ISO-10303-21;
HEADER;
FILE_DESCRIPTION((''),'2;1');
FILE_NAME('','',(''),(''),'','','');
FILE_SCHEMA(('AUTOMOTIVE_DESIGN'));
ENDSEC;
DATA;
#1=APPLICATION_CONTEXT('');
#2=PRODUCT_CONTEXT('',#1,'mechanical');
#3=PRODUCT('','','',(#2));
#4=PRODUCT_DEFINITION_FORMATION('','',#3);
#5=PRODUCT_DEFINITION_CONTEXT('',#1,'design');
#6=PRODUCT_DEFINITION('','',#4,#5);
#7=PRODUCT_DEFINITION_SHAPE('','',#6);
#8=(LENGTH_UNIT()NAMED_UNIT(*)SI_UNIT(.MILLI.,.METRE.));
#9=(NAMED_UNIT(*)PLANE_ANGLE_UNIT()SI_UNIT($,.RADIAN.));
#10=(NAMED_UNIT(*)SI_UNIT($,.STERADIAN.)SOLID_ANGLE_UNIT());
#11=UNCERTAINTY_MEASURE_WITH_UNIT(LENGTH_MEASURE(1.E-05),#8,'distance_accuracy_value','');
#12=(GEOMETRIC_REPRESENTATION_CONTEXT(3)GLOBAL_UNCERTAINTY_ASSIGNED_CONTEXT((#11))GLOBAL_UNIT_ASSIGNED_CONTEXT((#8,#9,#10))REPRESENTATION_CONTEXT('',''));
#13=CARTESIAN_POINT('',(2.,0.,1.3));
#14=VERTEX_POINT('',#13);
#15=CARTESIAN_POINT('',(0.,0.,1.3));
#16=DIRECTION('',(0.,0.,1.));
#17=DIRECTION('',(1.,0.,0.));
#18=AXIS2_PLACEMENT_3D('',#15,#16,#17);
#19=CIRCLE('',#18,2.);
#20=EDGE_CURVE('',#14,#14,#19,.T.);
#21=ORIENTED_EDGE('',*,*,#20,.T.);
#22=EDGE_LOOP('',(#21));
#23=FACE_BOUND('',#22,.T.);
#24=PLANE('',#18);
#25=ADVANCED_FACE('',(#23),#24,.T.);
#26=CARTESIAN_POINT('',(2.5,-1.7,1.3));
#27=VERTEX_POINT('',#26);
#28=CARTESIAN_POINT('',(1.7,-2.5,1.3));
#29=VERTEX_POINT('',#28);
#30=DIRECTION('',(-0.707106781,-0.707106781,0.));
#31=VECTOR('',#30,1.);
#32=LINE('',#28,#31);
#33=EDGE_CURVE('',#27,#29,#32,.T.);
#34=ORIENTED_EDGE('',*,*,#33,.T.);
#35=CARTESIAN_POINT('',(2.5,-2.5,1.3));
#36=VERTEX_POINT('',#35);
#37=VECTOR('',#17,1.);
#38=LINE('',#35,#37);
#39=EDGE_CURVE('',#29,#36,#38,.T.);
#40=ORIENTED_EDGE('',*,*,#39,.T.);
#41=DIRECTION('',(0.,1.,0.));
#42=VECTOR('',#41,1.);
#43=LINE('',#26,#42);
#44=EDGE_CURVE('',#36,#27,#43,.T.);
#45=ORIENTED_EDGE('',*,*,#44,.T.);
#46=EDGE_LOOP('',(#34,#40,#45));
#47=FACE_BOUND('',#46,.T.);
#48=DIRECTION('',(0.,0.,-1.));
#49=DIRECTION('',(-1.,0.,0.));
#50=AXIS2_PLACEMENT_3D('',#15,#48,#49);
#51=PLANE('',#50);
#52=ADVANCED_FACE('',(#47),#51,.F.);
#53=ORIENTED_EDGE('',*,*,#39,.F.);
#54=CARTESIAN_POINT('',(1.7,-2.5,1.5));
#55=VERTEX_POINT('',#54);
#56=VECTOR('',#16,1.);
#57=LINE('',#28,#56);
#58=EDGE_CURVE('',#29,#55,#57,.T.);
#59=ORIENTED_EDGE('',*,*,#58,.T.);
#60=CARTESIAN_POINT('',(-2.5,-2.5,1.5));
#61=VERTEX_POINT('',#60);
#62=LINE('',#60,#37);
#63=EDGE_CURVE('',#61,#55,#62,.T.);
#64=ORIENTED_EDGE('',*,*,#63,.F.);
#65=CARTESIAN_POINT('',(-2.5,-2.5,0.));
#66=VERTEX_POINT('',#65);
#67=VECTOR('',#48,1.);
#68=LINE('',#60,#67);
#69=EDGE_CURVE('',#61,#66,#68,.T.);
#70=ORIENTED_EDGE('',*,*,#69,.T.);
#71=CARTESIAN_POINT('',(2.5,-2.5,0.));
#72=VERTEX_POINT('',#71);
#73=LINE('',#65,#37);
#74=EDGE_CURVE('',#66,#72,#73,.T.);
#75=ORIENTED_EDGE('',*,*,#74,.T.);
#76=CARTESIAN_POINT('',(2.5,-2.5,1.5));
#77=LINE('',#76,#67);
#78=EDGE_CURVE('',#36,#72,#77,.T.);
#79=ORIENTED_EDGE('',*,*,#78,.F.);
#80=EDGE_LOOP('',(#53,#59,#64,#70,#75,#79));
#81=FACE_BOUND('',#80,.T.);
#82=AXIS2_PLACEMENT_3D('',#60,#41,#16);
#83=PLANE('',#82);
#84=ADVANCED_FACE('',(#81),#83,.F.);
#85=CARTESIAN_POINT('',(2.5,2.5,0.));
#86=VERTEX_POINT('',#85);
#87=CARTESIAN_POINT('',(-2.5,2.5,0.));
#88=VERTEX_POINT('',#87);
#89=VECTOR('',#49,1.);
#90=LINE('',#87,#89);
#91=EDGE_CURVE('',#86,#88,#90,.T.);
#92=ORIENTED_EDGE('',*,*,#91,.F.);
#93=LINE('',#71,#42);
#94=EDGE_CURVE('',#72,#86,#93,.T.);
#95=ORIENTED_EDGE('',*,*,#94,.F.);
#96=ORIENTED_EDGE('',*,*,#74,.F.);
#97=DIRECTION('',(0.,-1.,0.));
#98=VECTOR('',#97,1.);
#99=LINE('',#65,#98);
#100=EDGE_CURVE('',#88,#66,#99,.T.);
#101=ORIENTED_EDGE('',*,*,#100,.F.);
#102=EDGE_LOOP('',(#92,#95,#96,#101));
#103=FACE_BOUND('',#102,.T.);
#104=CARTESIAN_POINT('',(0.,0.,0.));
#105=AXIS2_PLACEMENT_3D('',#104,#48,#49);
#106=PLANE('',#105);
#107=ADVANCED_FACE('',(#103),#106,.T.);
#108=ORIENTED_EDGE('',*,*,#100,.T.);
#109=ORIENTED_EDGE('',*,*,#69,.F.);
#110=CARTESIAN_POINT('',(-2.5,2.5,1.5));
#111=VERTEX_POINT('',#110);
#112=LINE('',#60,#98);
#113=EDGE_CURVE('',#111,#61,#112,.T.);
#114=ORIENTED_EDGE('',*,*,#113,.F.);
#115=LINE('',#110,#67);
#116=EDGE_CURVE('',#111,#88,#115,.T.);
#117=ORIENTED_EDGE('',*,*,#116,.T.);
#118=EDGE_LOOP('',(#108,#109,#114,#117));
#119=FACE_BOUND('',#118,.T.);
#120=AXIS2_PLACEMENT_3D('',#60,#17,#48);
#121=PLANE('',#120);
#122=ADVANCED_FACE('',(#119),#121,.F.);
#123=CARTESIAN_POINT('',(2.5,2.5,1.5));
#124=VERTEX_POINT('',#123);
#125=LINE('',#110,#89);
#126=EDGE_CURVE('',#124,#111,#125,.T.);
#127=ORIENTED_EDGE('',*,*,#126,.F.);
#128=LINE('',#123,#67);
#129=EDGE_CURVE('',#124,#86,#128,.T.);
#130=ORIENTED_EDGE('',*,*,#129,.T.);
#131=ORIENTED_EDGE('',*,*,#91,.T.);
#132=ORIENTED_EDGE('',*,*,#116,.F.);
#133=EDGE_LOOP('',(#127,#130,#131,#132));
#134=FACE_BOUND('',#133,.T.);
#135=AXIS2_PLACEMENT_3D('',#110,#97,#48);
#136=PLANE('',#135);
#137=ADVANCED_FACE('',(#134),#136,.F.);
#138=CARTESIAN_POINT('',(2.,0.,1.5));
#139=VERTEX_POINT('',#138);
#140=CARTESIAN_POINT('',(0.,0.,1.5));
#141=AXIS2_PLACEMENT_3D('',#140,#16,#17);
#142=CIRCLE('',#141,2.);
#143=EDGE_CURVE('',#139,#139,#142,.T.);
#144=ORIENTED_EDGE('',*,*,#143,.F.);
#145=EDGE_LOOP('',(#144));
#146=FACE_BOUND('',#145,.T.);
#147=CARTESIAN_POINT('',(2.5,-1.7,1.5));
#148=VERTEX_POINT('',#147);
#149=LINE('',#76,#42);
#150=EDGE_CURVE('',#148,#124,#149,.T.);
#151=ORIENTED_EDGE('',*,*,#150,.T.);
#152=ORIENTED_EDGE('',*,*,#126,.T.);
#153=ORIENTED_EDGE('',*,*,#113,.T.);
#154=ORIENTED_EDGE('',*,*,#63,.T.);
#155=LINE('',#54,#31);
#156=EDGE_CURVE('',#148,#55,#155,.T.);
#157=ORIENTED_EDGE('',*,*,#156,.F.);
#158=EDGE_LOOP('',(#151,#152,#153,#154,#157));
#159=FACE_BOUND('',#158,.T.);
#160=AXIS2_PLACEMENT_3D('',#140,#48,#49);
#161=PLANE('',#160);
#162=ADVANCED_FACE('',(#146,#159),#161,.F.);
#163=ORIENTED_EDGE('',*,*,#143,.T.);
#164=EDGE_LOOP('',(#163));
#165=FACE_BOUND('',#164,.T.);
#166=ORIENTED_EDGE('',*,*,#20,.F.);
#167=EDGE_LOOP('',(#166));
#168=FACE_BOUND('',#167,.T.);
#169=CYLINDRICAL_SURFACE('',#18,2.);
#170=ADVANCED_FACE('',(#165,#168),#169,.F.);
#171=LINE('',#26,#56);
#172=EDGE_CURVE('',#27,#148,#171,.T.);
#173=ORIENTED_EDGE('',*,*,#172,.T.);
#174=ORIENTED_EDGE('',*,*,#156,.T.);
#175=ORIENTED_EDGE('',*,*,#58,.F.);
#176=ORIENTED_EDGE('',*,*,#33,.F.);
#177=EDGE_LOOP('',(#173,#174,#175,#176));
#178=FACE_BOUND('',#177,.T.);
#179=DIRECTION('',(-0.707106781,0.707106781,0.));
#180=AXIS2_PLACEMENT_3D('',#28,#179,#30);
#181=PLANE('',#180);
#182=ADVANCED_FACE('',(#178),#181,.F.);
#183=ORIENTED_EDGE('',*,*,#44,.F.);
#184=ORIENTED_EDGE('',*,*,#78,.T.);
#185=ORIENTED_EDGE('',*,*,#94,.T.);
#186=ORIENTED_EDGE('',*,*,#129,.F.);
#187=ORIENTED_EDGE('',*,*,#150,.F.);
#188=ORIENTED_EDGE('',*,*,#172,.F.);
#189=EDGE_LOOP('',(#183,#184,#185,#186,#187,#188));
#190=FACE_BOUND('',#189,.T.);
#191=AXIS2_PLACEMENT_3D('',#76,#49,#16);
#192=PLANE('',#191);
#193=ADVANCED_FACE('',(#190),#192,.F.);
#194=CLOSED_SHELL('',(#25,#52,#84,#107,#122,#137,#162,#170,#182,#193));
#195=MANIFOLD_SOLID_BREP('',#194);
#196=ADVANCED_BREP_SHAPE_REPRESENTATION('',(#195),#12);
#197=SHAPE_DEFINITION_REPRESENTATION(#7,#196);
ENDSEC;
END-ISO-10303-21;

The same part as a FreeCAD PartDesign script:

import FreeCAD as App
import Part
import Sketcher
Q = App.Units.Quantity

doc = App.newDocument("Part")
body = doc.addObject("PartDesign::Body", "Body")

sketch1 = body.newObject("Sketcher::SketchObject", "Sketch")
sketch1.AttachmentSupport = (doc.getObject("XY_Plane"), [""])
sketch1.MapMode = "FlatFace"
sketch1.addGeometry([
    Part.LineSegment(App.Vector(-2, 2, 0), App.Vector(-2, -2, 0)),
    Part.LineSegment(App.Vector(-2, -2, 0), App.Vector(2, -2, 0)),
    Part.LineSegment(App.Vector(2, -2, 0), App.Vector(2, 2, 0)),
    Part.LineSegment(App.Vector(2, 2, 0), App.Vector(-2, 2, 0)),
], False)
sketch1.addConstraint([
    Sketcher.Constraint("Coincident", 0, 2, 1, 1),
    Sketcher.Constraint("Coincident", 1, 2, 2, 1),
    Sketcher.Constraint("Coincident", 2, 2, 3, 1),
    Sketcher.Constraint("Coincident", 3, 2, 0, 1),
    Sketcher.Constraint("Vertical", 0),
    Sketcher.Constraint("Horizontal", 1),
    Sketcher.Constraint("Vertical", 2),
    Sketcher.Constraint("Horizontal", 3),
    Sketcher.Constraint("Symmetric", 0, 2, 2, 2, -1, 1),
    Sketcher.Constraint("Equal", 3, 0),
    Sketcher.Constraint("DistanceX", 1, 1, 1, 2, Q("5 mm")),
])
pad1 = body.newObject("PartDesign::Pad", "Pad")
pad1.Profile = sketch1
pad1.Length = 1.5

sketch2 = body.newObject("Sketcher::SketchObject", "Sketch001")
sketch2.AttachmentSupport = (doc.getObject("XY_Plane"), [""])
sketch2.MapMode = "FlatFace"
sketch2.AttachmentOffset = App.Placement(App.Vector(0, 0, 1.5), App.Rotation())
sketch2.addGeometry([
    Part.Circle(App.Vector(0, 0, 0), App.Vector(0, 0, 1), 2),
    Part.LineSegment(App.Vector(1.7, -2.5, 0), App.Vector(2.5, -2.5, 0)),
    Part.LineSegment(App.Vector(2.5, -2.5, 0), App.Vector(2.5, -1.7, 0)),
    Part.LineSegment(App.Vector(2.5, -1.7, 0), App.Vector(1.7, -2.5, 0)),
], False)
sketch2.addConstraint([
    Sketcher.Constraint("Coincident", 1, 2, 2, 1),
    Sketcher.Constraint("Coincident", 2, 2, 3, 1),
    Sketcher.Constraint("Coincident", 3, 2, 1, 1),
    Sketcher.Constraint("Horizontal", 1),
    Sketcher.Constraint("Vertical", 2),
    Sketcher.Constraint("Coincident", 0, 3, -1, 1),
    Sketcher.Constraint("Equal", 1, 2),
    Sketcher.Constraint("Diameter", 0, Q("4 mm")),
    Sketcher.Constraint("DistanceX", 1, 1, 1, 2, Q("0.8 mm")),
    Sketcher.Constraint("DistanceX", -1, 1, 1, 2, Q("2.5 mm")),
    Sketcher.Constraint("DistanceY", 1, 2, -1, 1, Q("2.5 mm")),
])
pocket1 = body.newObject("PartDesign::Pocket", "Pocket")
pocket1.Profile = sketch2
pocket1.Length = 0.2

doc.recompute()
